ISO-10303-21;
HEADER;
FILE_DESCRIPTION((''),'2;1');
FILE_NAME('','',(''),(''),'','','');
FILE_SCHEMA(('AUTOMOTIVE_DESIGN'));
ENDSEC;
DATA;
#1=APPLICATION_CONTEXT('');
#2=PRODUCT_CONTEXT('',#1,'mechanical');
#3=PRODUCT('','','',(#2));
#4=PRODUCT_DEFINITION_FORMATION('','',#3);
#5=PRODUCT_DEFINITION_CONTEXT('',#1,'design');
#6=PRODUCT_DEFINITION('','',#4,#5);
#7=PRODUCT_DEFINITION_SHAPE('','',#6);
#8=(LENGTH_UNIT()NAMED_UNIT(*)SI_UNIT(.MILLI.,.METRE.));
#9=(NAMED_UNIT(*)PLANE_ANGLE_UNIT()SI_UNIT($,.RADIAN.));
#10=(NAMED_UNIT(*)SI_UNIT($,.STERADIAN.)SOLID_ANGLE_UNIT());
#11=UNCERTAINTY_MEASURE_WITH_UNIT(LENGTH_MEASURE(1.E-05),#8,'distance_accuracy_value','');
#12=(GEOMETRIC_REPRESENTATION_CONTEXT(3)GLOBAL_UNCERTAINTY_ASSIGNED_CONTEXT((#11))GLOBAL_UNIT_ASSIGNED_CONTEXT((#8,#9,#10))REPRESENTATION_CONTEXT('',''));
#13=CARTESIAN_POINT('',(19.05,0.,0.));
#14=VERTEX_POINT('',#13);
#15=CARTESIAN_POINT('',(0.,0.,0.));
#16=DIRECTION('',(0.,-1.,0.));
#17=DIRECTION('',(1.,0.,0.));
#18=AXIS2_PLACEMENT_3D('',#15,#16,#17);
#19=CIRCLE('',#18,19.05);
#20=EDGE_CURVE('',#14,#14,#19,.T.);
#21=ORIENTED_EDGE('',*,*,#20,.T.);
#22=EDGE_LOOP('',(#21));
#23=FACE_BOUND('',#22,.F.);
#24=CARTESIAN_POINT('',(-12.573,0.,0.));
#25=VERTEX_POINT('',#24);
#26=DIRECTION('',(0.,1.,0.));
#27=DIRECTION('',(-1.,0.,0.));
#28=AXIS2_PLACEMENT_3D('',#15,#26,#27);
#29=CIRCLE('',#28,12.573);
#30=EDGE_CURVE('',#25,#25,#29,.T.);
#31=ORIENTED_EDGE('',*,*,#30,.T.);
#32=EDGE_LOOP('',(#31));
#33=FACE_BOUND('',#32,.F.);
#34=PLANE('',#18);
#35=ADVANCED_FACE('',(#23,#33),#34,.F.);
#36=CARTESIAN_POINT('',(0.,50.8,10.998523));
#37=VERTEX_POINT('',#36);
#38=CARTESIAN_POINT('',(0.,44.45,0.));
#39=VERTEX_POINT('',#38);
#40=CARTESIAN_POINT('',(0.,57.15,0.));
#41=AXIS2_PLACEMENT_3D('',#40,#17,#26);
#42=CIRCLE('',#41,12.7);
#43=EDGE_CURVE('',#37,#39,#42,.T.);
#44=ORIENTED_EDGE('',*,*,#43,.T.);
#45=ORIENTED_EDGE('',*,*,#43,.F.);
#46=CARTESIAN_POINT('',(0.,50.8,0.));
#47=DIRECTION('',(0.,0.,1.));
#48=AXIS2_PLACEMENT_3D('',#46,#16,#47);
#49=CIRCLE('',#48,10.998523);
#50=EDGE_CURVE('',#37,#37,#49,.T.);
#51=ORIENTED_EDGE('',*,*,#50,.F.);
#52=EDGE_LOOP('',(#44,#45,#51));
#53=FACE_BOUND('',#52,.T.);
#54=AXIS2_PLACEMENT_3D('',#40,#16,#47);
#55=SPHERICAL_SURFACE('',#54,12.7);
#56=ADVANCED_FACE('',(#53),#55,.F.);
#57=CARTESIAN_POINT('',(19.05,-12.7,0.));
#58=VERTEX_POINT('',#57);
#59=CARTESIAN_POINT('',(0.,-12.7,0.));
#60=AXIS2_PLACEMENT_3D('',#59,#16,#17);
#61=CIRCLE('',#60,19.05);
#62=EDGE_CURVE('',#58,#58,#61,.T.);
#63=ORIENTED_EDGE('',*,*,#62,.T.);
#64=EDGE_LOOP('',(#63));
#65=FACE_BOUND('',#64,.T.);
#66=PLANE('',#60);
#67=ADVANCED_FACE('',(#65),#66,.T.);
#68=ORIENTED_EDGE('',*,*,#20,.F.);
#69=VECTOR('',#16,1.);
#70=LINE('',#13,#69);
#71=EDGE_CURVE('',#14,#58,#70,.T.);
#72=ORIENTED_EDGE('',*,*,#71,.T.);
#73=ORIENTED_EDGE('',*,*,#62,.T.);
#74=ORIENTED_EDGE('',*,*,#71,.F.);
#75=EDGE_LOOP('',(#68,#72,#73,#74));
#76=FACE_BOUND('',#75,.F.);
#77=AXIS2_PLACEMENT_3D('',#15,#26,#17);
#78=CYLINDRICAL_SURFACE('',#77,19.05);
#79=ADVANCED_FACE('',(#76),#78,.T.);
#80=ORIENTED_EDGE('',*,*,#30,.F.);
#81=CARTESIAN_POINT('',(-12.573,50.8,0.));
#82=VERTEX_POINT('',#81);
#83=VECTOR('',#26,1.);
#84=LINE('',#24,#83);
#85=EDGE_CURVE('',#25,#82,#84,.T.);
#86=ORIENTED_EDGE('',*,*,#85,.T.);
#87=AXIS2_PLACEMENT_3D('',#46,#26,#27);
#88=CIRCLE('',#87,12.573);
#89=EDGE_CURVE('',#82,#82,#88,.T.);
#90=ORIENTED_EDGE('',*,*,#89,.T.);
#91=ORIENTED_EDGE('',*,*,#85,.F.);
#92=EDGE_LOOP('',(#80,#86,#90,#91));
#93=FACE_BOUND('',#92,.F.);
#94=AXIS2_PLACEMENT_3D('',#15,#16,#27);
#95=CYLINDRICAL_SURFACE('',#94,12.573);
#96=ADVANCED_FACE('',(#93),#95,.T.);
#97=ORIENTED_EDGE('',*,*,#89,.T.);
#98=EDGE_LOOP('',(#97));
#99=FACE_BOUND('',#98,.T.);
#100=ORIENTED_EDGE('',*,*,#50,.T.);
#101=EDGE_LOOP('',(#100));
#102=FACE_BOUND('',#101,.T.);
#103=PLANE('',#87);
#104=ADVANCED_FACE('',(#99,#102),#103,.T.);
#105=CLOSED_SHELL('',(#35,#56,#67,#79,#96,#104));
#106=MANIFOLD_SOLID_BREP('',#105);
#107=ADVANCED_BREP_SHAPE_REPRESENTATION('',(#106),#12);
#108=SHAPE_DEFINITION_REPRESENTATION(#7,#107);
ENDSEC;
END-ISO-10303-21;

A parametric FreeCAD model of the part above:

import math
import FreeCAD as App
import Part
import Sketcher
from FreeCAD import Vector
Q = App.Units.Quantity

doc = App.newDocument("Part")
body = doc.addObject("PartDesign::Body", "Body")

sketch1 = body.newObject("Sketcher::SketchObject", "Sketch")
sketch1.AttachmentSupport = (doc.getObject("XZ_Plane"), [""])
sketch1.MapMode = "FlatFace"
sketch1.addGeometry(Part.Circle(Vector(0, 0, 0), Vector(0, 0, 1), 19.05), False)
sketch1.addConstraint(Sketcher.Constraint("Coincident", 0, 3, -1, 1))
sketch1.addConstraint(Sketcher.Constraint("Diameter", 0, Q("1.5 in")))
pad1 = body.newObject("PartDesign::Pad", "Pad")
pad1.Profile = sketch1
pad1.Length = Q("0.5 in")

sketch2 = body.newObject("Sketcher::SketchObject", "Sketch001")
sketch2.AttachmentSupport = (doc.getObject("XZ_Plane"), [""])
sketch2.MapMode = "FlatFace"
sketch2.addGeometry(Part.Circle(Vector(0, 0, 0), Vector(0, 0, 1), 12.573), False)
sketch2.addConstraint(Sketcher.Constraint("Coincident", 0, 3, -1, 1))
sketch2.addConstraint(Sketcher.Constraint("Diameter", 0, Q("0.99 in")))
pad2 = body.newObject("PartDesign::Pad", "Pad001")
pad2.Profile = sketch2
pad2.Length = Q("2 in")
pad2.Reversed = True

sketch3 = body.newObject("Sketcher::SketchObject", "Sketch002")
sketch3.AttachmentSupport = (doc.getObject("YZ_Plane"), [""])
sketch3.MapMode = "FlatFace"
sketch3.addGeometry(Part.LineSegment(Vector(44.45, 0, 0), Vector(69.85, 0, 0)), False)
sketch3.addGeometry(Part.ArcOfCircle(Part.Circle(Vector(57.15, 0, 0), Vector(0, 0, 1), 12.7), math.radians(0), math.radians(180)), False)
sketch3.addConstraint(Sketcher.Constraint("Coincident", 0, 1, 1, 2))
sketch3.addConstraint(Sketcher.Constraint("Coincident", 1, 1, 0, 2))
sketch3.addConstraint(Sketcher.Constraint("Horizontal", 0))
sketch3.addConstraint(Sketcher.Constraint("PointOnObject", 1, 3, -1))
sketch3.addConstraint(Sketcher.Constraint("PointOnObject", 0, 1, -1))
sketch3.addConstraint(Sketcher.Constraint("Radius", 1, Q("0.5 in")))
sketch3.addConstraint(Sketcher.Constraint("DistanceX", -1, 1, 1, 3, Q("2.25 in")))
groove = body.newObject("PartDesign::Groove", "Groove")
groove.Profile = sketch3
groove.ReferenceAxis = (sketch3, ["H_Axis"])
groove.Angle = 360

doc.recompute()
